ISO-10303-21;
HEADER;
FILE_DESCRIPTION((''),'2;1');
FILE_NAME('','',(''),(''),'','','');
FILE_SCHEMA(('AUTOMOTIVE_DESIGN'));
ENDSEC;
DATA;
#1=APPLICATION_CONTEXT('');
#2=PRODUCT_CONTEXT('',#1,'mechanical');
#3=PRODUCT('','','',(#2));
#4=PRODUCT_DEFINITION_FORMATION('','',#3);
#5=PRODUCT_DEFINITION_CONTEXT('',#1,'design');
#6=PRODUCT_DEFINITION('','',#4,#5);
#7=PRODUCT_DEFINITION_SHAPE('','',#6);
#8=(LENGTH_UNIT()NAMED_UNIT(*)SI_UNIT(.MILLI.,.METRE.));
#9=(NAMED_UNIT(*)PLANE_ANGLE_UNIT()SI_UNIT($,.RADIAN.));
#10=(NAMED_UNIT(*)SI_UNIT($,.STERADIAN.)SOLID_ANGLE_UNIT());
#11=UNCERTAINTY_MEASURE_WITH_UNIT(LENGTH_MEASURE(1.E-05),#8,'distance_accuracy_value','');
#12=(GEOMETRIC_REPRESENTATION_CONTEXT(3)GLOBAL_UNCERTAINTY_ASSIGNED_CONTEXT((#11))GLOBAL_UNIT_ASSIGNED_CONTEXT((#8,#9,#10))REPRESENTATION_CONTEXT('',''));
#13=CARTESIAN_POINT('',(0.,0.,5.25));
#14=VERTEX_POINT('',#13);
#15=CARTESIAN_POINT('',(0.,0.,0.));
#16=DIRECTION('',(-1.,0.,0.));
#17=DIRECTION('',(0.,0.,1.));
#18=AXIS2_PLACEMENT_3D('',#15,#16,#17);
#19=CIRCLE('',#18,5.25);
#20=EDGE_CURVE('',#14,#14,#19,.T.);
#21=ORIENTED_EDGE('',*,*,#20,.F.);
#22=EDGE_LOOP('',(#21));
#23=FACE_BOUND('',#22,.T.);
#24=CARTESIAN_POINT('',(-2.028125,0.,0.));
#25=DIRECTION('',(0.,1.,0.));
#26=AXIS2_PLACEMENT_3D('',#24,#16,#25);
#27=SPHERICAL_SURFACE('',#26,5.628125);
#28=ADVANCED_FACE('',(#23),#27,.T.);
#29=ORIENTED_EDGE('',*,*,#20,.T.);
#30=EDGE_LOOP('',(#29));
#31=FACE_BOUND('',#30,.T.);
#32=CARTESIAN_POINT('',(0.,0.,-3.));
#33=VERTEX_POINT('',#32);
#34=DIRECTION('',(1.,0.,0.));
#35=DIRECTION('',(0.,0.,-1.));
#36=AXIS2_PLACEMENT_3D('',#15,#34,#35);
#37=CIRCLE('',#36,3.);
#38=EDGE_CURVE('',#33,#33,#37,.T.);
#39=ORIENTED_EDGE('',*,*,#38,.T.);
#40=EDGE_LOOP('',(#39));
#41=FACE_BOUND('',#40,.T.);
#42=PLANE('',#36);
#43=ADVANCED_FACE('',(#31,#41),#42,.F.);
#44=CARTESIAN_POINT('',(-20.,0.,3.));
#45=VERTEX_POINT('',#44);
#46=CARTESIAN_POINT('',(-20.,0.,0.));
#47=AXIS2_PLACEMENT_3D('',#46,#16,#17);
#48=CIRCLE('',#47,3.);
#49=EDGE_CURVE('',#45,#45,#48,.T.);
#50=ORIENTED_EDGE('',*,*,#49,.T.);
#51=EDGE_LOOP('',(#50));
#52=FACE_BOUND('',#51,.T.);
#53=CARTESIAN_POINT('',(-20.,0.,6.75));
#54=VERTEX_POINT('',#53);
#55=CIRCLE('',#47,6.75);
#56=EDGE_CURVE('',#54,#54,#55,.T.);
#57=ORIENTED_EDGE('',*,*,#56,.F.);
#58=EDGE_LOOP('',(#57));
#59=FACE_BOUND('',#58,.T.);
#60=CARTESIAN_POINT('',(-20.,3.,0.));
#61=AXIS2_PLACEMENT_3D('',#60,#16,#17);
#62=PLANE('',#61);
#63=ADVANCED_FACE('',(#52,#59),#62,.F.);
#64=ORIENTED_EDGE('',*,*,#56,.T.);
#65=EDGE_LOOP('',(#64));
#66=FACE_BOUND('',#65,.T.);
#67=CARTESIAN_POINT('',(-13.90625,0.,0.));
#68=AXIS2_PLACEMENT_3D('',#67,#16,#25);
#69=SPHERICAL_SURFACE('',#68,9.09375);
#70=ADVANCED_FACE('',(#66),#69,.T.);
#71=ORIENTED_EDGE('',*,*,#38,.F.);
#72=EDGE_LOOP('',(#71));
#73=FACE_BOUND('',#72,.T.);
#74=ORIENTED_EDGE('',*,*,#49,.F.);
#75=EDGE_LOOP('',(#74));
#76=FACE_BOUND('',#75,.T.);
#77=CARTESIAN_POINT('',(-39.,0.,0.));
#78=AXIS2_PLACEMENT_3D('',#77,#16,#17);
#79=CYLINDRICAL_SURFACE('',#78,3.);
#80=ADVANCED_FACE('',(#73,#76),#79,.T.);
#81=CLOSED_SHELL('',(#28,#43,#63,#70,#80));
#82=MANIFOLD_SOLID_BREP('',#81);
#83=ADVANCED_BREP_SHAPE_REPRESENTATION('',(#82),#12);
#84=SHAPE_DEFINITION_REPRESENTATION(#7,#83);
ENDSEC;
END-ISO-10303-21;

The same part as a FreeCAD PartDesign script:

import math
import FreeCAD as App
import Part
import Sketcher

V = App.Vector
Q = App.Units.Quantity

doc = App.newDocument("Part")
params = doc.addObject("Spreadsheet::Sheet", "Params")
for row, (alias, value) in enumerate([
    ("sketch1_width", "23 mm"),
    ("sketch1_width2", "20 mm"),
    ("sketch1_height", "3 mm"),
    ("sketch1_height2", "3.75 mm"),
    ("revolution_angle", "360 deg"),
    ("sketch2_width", "3.6 mm"),
    ("sketch2_height", "5.25 mm"),
    ("revolution2_angle", "360 deg"),
], start=1):
    params.set(f"A{row}", alias)
    params.set(f"B{row}", "=" + value)
    params.setAlias(f"B{row}", alias)

body = doc.addObject("PartDesign::Body", "Body")

# Sketch on XY plane
sketch1 = body.newObject("Sketcher::SketchObject", "Sketch")
sketch1.AttachmentSupport = (doc.getObject("XY_Plane"), [""])
sketch1.MapMode = "FlatFace"
sketch1.addGeometry(Part.LineSegment(V(-23, 0, 0), V(0, 0, 0)), False)
sketch1.addGeometry(Part.LineSegment(V(0, 0, 0), V(0, 3, 0)), False)
sketch1.addGeometry(Part.LineSegment(V(0, 3, 0), V(-20, 3, 0)), False)
sketch1.addGeometry(Part.LineSegment(V(-20, 3, 0), V(-20, 6.75, 0)), False)
sketch1.addGeometry(Part.ArcOfCircle(Part.Circle(V(-13.90625, 0, 0), V(0, 0, 1), 9.09375), math.radians(132.075022), math.radians(180)), False)
sketch1.addConstraint(Sketcher.Constraint("Coincident", 0, 2, 1, 1))
sketch1.addConstraint(Sketcher.Constraint("Coincident", 1, 2, 2, 1))
sketch1.addConstraint(Sketcher.Constraint("Coincident", 2, 2, 3, 1))
sketch1.addConstraint(Sketcher.Constraint("Coincident", 3, 2, 4, 1))
sketch1.addConstraint(Sketcher.Constraint("Coincident", 4, 2, 0, 1))
sketch1.addConstraint(Sketcher.Constraint("Horizontal", 0))
sketch1.addConstraint(Sketcher.Constraint("Vertical", 1))
sketch1.addConstraint(Sketcher.Constraint("Horizontal", 2))
sketch1.addConstraint(Sketcher.Constraint("Vertical", 3))
sketch1.addConstraint(Sketcher.Constraint("Coincident", 0, 2, -1, 1))
sketch1.addConstraint(Sketcher.Constraint("PointOnObject", 4, 3, -1))
sketch1.addConstraint(Sketcher.Constraint("DistanceX", 0, 1, 0, 2, Q("23 mm")))
sketch1.addConstraint(Sketcher.Constraint("DistanceX", 2, 2, 2, 1, Q("20 mm")))
sketch1.addConstraint(Sketcher.Constraint("DistanceY", 1, 1, 1, 2, Q("3 mm")))
sketch1.addConstraint(Sketcher.Constraint("DistanceY", 3, 1, 3, 2, Q("3.75 mm")))
sketch1.setExpression("Constraints[11]", "Params.sketch1_width")
sketch1.setExpression("Constraints[12]", "Params.sketch1_width2")
sketch1.setExpression("Constraints[13]", "Params.sketch1_height")
sketch1.setExpression("Constraints[14]", "Params.sketch1_height2")
revolution = body.newObject("PartDesign::Revolution", "Revolution")
revolution.Profile = sketch1
revolution.ReferenceAxis = (sketch1, ["H_Axis"])
revolution.setExpression("Angle", "Params.revolution_angle")

# Sketch on XY plane
sketch2 = body.newObject("Sketcher::SketchObject", "Sketch001")
sketch2.AttachmentSupport = (doc.getObject("XY_Plane"), [""])
sketch2.MapMode = "FlatFace"
sketch2.addGeometry(Part.LineSegment(V(0, 0, 0), V(3.6, 0, 0)), False)
sketch2.addGeometry(Part.ArcOfCircle(Part.Circle(V(-2.028125, 0, 0), V(0, 0, 1), 5.628125), math.radians(0), math.radians(68.877979)), False)
sketch2.addGeometry(Part.LineSegment(V(0, 5.25, 0), V(0, 0, 0)), False)
sketch2.addConstraint(Sketcher.Constraint("Coincident", 0, 2, 1, 1))
sketch2.addConstraint(Sketcher.Constraint("Coincident", 1, 2, 2, 1))
sketch2.addConstraint(Sketcher.Constraint("Coincident", 2, 2, 0, 1))
sketch2.addConstraint(Sketcher.Constraint("Horizontal", 0))
sketch2.addConstraint(Sketcher.Constraint("Vertical", 2))
sketch2.addConstraint(Sketcher.Constraint("Coincident", 2, 2, -1, 1))
sketch2.addConstraint(Sketcher.Constraint("PointOnObject", 1, 3, -1))
sketch2.addConstraint(Sketcher.Constraint("DistanceX", 0, 1, 0, 2, Q("3.6 mm")))
sketch2.addConstraint(Sketcher.Constraint("DistanceY", 2, 2, 2, 1, Q("5.25 mm")))
sketch2.setExpression("Constraints[7]", "Params.sketch2_width")
sketch2.setExpression("Constraints[8]", "Params.sketch2_height")
revolution2 = body.newObject("PartDesign::Revolution", "Revolution001")
revolution2.Profile = sketch2
revolution2.ReferenceAxis = (sketch2, ["H_Axis"])
revolution2.setExpression("Angle", "Params.revolution2_angle")

doc.recompute()
